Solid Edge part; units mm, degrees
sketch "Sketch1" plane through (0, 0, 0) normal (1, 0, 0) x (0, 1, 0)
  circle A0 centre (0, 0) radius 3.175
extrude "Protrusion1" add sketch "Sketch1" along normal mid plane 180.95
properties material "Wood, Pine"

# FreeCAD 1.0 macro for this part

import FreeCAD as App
import Part
import Sketcher
Q = App.Units.Quantity

doc = App.newDocument("Part")
body = doc.addObject("PartDesign::Body", "Body")

# Sketch on YZ plane
sketch1 = body.newObject("Sketcher::SketchObject", "Sketch")
sketch1.AttachmentSupport = (doc.getObject("YZ_Plane"), [""])
sketch1.MapMode = "FlatFace"
sketch1.addGeometry(Part.Circle(App.Vector(0, 0, 0), App.Vector(0, 0, 1), 3.175), False)
sketch1.addConstraint([
    Sketcher.Constraint("Coincident", 0, 3, -1, 1),
    Sketcher.Constraint("Diameter", 0, Q("0.25 in")),
])
pad1 = body.newObject("PartDesign::Pad", "Pad")
pad1.Profile = sketch1
pad1.Length = 180.95
pad1.Midplane = True

doc.recompute()
